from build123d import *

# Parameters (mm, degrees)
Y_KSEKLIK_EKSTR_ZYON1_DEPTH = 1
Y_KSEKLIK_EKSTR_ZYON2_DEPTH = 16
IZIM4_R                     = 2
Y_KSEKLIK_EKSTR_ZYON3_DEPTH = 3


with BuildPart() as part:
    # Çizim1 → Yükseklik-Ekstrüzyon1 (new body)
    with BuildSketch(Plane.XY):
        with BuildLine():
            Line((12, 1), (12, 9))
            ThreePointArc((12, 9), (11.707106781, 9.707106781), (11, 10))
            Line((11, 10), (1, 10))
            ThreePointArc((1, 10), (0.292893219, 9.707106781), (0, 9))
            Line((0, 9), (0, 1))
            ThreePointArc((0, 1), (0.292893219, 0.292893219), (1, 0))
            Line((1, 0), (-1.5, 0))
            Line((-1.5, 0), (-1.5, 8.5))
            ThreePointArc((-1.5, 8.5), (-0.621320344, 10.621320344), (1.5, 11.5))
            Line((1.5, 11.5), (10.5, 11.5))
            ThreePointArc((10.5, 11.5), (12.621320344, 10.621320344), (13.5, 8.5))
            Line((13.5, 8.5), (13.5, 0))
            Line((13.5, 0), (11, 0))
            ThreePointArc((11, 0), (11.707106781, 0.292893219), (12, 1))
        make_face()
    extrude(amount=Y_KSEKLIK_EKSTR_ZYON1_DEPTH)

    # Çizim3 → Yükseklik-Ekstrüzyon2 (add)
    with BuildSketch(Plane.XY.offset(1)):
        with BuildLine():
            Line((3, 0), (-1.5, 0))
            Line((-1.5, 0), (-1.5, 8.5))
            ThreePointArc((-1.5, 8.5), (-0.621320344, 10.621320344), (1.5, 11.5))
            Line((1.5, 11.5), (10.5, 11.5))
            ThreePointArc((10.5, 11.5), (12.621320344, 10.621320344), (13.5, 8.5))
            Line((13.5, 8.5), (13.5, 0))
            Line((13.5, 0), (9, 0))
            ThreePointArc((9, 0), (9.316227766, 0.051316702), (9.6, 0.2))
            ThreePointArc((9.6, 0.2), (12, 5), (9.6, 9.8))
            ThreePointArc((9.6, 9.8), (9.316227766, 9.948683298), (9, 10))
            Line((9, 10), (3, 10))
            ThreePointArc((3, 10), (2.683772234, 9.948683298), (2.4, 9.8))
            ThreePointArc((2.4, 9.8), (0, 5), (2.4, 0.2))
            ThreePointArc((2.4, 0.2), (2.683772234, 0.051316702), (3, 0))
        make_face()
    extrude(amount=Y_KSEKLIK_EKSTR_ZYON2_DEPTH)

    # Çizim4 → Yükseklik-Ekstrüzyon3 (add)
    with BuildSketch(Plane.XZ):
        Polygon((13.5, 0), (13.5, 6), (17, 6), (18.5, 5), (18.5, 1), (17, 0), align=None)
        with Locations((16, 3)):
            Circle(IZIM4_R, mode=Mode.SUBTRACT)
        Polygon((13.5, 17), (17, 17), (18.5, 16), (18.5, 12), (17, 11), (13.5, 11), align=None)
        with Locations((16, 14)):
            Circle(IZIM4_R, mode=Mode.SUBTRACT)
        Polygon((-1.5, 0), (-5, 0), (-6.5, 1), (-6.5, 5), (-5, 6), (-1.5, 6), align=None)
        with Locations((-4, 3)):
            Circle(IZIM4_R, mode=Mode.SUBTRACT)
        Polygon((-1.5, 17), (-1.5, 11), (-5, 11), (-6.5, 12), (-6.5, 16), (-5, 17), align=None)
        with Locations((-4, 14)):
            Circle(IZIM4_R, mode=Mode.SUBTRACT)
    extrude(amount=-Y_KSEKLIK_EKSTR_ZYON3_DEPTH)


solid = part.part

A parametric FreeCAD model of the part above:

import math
import FreeCAD as App
import Part
import Sketcher

doc = App.newDocument("Part")
body = doc.addObject("PartDesign::Body", "Body")

# Sketch on XY plane
sketch1 = body.newObject("Sketcher::SketchObject", "Sketch")
sketch1.AttachmentSupport = (doc.getObject("XY_Plane"), [""])
sketch1.MapMode = "FlatFace"
sketch1.addGeometry(Part.LineSegment(App.Vector(12, 9, 0), App.Vector(12, 1, 0)), False)
sketch1.addGeometry(Part.ArcOfCircle(Part.Circle(App.Vector(11, 1, 0), App.Vector(0, 0, 1), 1), math.radians(-90), math.radians(0)), False)
sketch1.addGeometry(Part.LineSegment(App.Vector(11, 0, 0), App.Vector(13.5, 0, 0)), False)
sketch1.addGeometry(Part.LineSegment(App.Vector(13.5, 0, 0), App.Vector(13.5, 8.5, 0)), False)
sketch1.addGeometry(Part.ArcOfCircle(Part.Circle(App.Vector(10.5, 8.5, 0), App.Vector(0, 0, 1), 3), math.radians(0), math.radians(90)), False)
sketch1.addGeometry(Part.LineSegment(App.Vector(10.5, 11.5, 0), App.Vector(1.5, 11.5, 0)), False)
sketch1.addGeometry(Part.ArcOfCircle(Part.Circle(App.Vector(1.5, 8.5, 0), App.Vector(0, 0, 1), 3), math.radians(90), math.radians(180)), False)
sketch1.addGeometry(Part.LineSegment(App.Vector(-1.5, 8.5, 0), App.Vector(-1.5, 0, 0)), False)
sketch1.addGeometry(Part.LineSegment(App.Vector(-1.5, 0, 0), App.Vector(1, 0, 0)), False)
sketch1.addGeometry(Part.ArcOfCircle(Part.Circle(App.Vector(1, 1, 0), App.Vector(0, 0, 1), 1), math.radians(-180), math.radians(-90)), False)
sketch1.addGeometry(Part.LineSegment(App.Vector(0, 1, 0), App.Vector(0, 9, 0)), False)
sketch1.addGeometry(Part.ArcOfCircle(Part.Circle(App.Vector(1, 9, 0), App.Vector(0, 0, 1), 1), math.radians(90), math.radians(180)), False)
sketch1.addGeometry(Part.LineSegment(App.Vector(1, 10, 0), App.Vector(11, 10, 0)), False)
sketch1.addGeometry(Part.ArcOfCircle(Part.Circle(App.Vector(11, 9, 0), App.Vector(0, 0, 1), 1), math.radians(0), math.radians(90)), False)
sketch1.addConstraint(Sketcher.Constraint("Tangent", 0, 2, 1, 2))
sketch1.addConstraint(Sketcher.Constraint("Tangent", 1, 1, 2, 1))
sketch1.addConstraint(Sketcher.Constraint("Coincident", 2, 2, 3, 1))
sketch1.addConstraint(Sketcher.Constraint("Tangent", 3, 2, 4, 1))
sketch1.addConstraint(Sketcher.Constraint("Tangent", 4, 2, 5, 1))
sketch1.addConstraint(Sketcher.Constraint("Tangent", 5, 2, 6, 1))
sketch1.addConstraint(Sketcher.Constraint("Tangent", 6, 2, 7, 1))
sketch1.addConstraint(Sketcher.Constraint("Coincident", 7, 2, 8, 1))
sketch1.addConstraint(Sketcher.Constraint("Tangent", 8, 2, 9, 2))
sketch1.addConstraint(Sketcher.Constraint("Tangent", 9, 1, 10, 1))
sketch1.addConstraint(Sketcher.Constraint("Tangent", 10, 2, 11, 2))
sketch1.addConstraint(Sketcher.Constraint("Tangent", 11, 1, 12, 1))
sketch1.addConstraint(Sketcher.Constraint("Tangent", 12, 2, 13, 2))
sketch1.addConstraint(Sketcher.Constraint("Tangent", 13, 1, 0, 1))
sketch1.addConstraint(Sketcher.Constraint("Vertical", 0))
sketch1.addConstraint(Sketcher.Constraint("Horizontal", 2))
sketch1.addConstraint(Sketcher.Constraint("Vertical", 3))
sketch1.addConstraint(Sketcher.Constraint("Horizontal", 5))
sketch1.addConstraint(Sketcher.Constraint("Vertical", 7))
sketch1.addConstraint(Sketcher.Constraint("Horizontal", 8))
sketch1.addConstraint(Sketcher.Constraint("Vertical", 10))
sketch1.addConstraint(Sketcher.Constraint("Horizontal", 12))
sketch1.addConstraint(Sketcher.Constraint("Equal", 4, 6))
sketch1.addConstraint(Sketcher.Constraint("Equal", 1, 9))
sketch1.addConstraint(Sketcher.Constraint("Equal", 9, 11))
sketch1.addConstraint(Sketcher.Constraint("Equal", 11, 13))
sketch1.addConstraint(Sketcher.Constraint("PointOnObject", 1, 1, -1))
sketch1.addConstraint(Sketcher.Constraint("PointOnObject", 7, 2, -1))
sketch1.addConstraint(Sketcher.Constraint("PointOnObject", 9, 1, -2))
sketch1.addConstraint(Sketcher.Constraint("Equal", 2, 8))
sketch1.addConstraint(Sketcher.Constraint("Radius", 1, 1.0))
sketch1.addConstraint(Sketcher.Constraint("Radius", 4, 3.0))
sketch1.addConstraint(Sketcher.Constraint("DistanceX", 5, 2, 5, 1, 9.0))
sketch1.addConstraint(Sketcher.Constraint("DistanceX", 12, 1, 12, 2, 10.0))
sketch1.addConstraint(Sketcher.Constraint("DistanceY", 0, 2, 0, 1, 8.0))
sketch1.addConstraint(Sketcher.Constraint("DistanceY", 3, 1, 3, 2, 8.5))
pad1 = body.newObject("PartDesign::Pad", "Pad")
pad1.Profile = sketch1
pad1.Length = 1

# Sketch on XY plane
sketch2 = body.newObject("Sketcher::SketchObject", "Sketch001")
sketch2.AttachmentSupport = (doc.getObject("XY_Plane"), [""])
sketch2.MapMode = "FlatFace"
sketch2.AttachmentOffset = App.Placement(App.Vector(0, 0, 1), App.Rotation())
sketch2.addGeometry(Part.LineSegment(App.Vector(-1.5, 0, 0), App.Vector(3, 0, 0)), False)
sketch2.addGeometry(Part.ArcOfCircle(Part.Circle(App.Vector(3, 1, 0), App.Vector(0, 0, 1), 1), math.radians(-127), math.radians(-90)), False)
sketch2.addGeometry(Part.ArcOfCircle(Part.Circle(App.Vector(6, 5, 0), App.Vector(0, 0, 1), 6), math.radians(127), math.radians(233)), False)
sketch2.addGeometry(Part.ArcOfCircle(Part.Circle(App.Vector(3, 9, 0), App.Vector(0, 0, 1), 1), math.radians(90), math.radians(127)), False)
sketch2.addGeometry(Part.LineSegment(App.Vector(3, 10, 0), App.Vector(9, 10, 0)), False)
sketch2.addGeometry(Part.ArcOfCircle(Part.Circle(App.Vector(9, 9, 0), App.Vector(0, 0, 1), 1), math.radians(53), math.radians(90)), False)
sketch2.addGeometry(Part.ArcOfCircle(Part.Circle(App.Vector(6, 5, 0), App.Vector(0, 0, 1), 6), math.radians(-53), math.radians(53)), False)
sketch2.addGeometry(Part.ArcOfCircle(Part.Circle(App.Vector(9, 1, 0), App.Vector(0, 0, 1), 1), math.radians(-90), math.radians(-53)), False)
sketch2.addGeometry(Part.LineSegment(App.Vector(9, 0, 0), App.Vector(13.5, 0, 0)), False)
sketch2.addGeometry(Part.LineSegment(App.Vector(13.5, 0, 0), App.Vector(13.5, 8.5, 0)), False)
sketch2.addGeometry(Part.ArcOfCircle(Part.Circle(App.Vector(10.5, 8.5, 0), App.Vector(0, 0, 1), 3), math.radians(0), math.radians(90)), False)
sketch2.addGeometry(Part.LineSegment(App.Vector(10.5, 11.5, 0), App.Vector(1.5, 11.5, 0)), False)
sketch2.addGeometry(Part.ArcOfCircle(Part.Circle(App.Vector(1.5, 8.5, 0), App.Vector(0, 0, 1), 3), math.radians(90), math.radians(180)), False)
sketch2.addGeometry(Part.LineSegment(App.Vector(-1.5, 8.5, 0), App.Vector(-1.5, 0, 0)), False)
sketch2.addConstraint(Sketcher.Constraint("Tangent", 0, 2, 1, 2))
sketch2.addConstraint(Sketcher.Constraint("Tangent", 1, 1, 2, 2))
sketch2.addConstraint(Sketcher.Constraint("Tangent", 2, 1, 3, 2))
sketch2.addConstraint(Sketcher.Constraint("Tangent", 3, 1, 4, 1))
sketch2.addConstraint(Sketcher.Constraint("Tangent", 4, 2, 5, 2))
sketch2.addConstraint(Sketcher.Constraint("Tangent", 5, 1, 6, 2))
sketch2.addConstraint(Sketcher.Constraint("Tangent", 6, 1, 7, 2))
sketch2.addConstraint(Sketcher.Constraint("Tangent", 7, 1, 8, 1))
sketch2.addConstraint(Sketcher.Constraint("Coincident", 8, 2, 9, 1))
sketch2.addConstraint(Sketcher.Constraint("Tangent", 9, 2, 10, 1))
sketch2.addConstraint(Sketcher.Constraint("Tangent", 10, 2, 11, 1))
sketch2.addConstraint(Sketcher.Constraint("Tangent", 11, 2, 12, 1))
sketch2.addConstraint(Sketcher.Constraint("Tangent", 12, 2, 13, 1))
sketch2.addConstraint(Sketcher.Constraint("Coincident", 13, 2, 0, 1))
sketch2.addConstraint(Sketcher.Constraint("Horizontal", 0))
sketch2.addConstraint(Sketcher.Constraint("Horizontal", 4))
sketch2.addConstraint(Sketcher.Constraint("Horizontal", 8))
sketch2.addConstraint(Sketcher.Constraint("Vertical", 9))
sketch2.addConstraint(Sketcher.Constraint("Horizontal", 11))
sketch2.addConstraint(Sketcher.Constraint("Vertical", 13))
sketch2.addConstraint(Sketcher.Constraint("Coincident", 6, 3, 2, 3))
sketch2.addConstraint(Sketcher.Constraint("Equal", 1, 3))
sketch2.addConstraint(Sketcher.Constraint("Equal", 3, 5))
sketch2.addConstraint(Sketcher.Constraint("Equal", 2, 6))
sketch2.addConstraint(Sketcher.Constraint("Equal", 5, 7))
sketch2.addConstraint(Sketcher.Constraint("Equal", 10, 12))
sketch2.addConstraint(Sketcher.Constraint("PointOnObject", 0, 2, -1))
sketch2.addConstraint(Sketcher.Constraint("PointOnObject", 7, 1, -1))
sketch2.addConstraint(Sketcher.Constraint("Vertical", 1, 3, 3, 3))
sketch2.addConstraint(Sketcher.Constraint("Equal", 0, 8))
sketch2.addConstraint(Sketcher.Constraint("Radius", 1, 1.0))
sketch2.addConstraint(Sketcher.Constraint("Radius", 2, 6.0))
sketch2.addConstraint(Sketcher.Constraint("Radius", 10, 3.0))
sketch2.addConstraint(Sketcher.Constraint("DistanceX", 4, 1, 4, 2, 6.0))
sketch2.addConstraint(Sketcher.Constraint("DistanceX", 11, 2, 11, 1, 9.0))
sketch2.addConstraint(Sketcher.Constraint("DistanceY", 9, 1, 9, 2, 8.5))
sketch2.addConstraint(Sketcher.Constraint("DistanceX", -1, 1, 1, 3, 3.0))
pad2 = body.newObject("PartDesign::Pad", "Pad001")
pad2.Profile = sketch2
pad2.Length = 16

# Sketch on XZ plane
sketch3 = body.newObject("Sketcher::SketchObject", "Sketch002")
sketch3.AttachmentSupport = (doc.getObject("XZ_Plane"), [""])
sketch3.MapMode = "FlatFace"
sketch3.addGeometry(Part.LineSegment(App.Vector(13.5, 6, 0), App.Vector(13.5, 0, 0)), False)
sketch3.addGeometry(Part.LineSegment(App.Vector(13.5, 0, 0), App.Vector(17, 0, 0)), False)
sketch3.addGeometry(Part.LineSegment(App.Vector(17, 0, 0), App.Vector(18.5, 1, 0)), False)
sketch3.addGeometry(Part.LineSegment(App.Vector(18.5, 1, 0), App.Vector(18.5, 5, 0)), False)
sketch3.addGeometry(Part.LineSegment(App.Vector(18.5, 5, 0), App.Vector(17, 6, 0)), False)
sketch3.addGeometry(Part.LineSegment(App.Vector(17, 6, 0), App.Vector(13.5, 6, 0)), False)
sketch3.addGeometry(Part.Circle(App.Vector(16, 3, 0), App.Vector(0, 0, 1), 2), False)
sketch3.addGeometry(Part.LineSegment(App.Vector(17, 17, 0), App.Vector(13.5, 17, 0)), False)
sketch3.addGeometry(Part.LineSegment(App.Vector(13.5, 17, 0), App.Vector(13.5, 11, 0)), False)
sketch3.addGeometry(Part.LineSegment(App.Vector(13.5, 11, 0), App.Vector(17, 11, 0)), False)
sketch3.addGeometry(Part.LineSegment(App.Vector(17, 11, 0), App.Vector(18.5, 12, 0)), False)
sketch3.addGeometry(Part.LineSegment(App.Vector(18.5, 12, 0), App.Vector(18.5, 16, 0)), False)
sketch3.addGeometry(Part.LineSegment(App.Vector(18.5, 16, 0), App.Vector(17, 17, 0)), False)
sketch3.addGeometry(Part.Circle(App.Vector(16, 14, 0), App.Vector(0, 0, 1), 2), False)
sketch3.addGeometry(Part.LineSegment(App.Vector(-5, 0, 0), App.Vector(-1.5, 0, 0)), False)
sketch3.addGeometry(Part.LineSegment(App.Vector(-1.5, 0, 0), App.Vector(-1.5, 6, 0)), False)
sketch3.addGeometry(Part.LineSegment(App.Vector(-1.5, 6, 0), App.Vector(-5, 6, 0)), False)
sketch3.addGeometry(Part.LineSegment(App.Vector(-5, 6, 0), App.Vector(-6.5, 5, 0)), False)
sketch3.addGeometry(Part.LineSegment(App.Vector(-6.5, 5, 0), App.Vector(-6.5, 1, 0)), False)
sketch3.addGeometry(Part.LineSegment(App.Vector(-6.5, 1, 0), App.Vector(-5, 0, 0)), False)
sketch3.addGeometry(Part.Circle(App.Vector(-4, 3, 0), App.Vector(0, 0, 1), 2), False)
sketch3.addGeometry(Part.LineSegment(App.Vector(-1.5, 11, 0), App.Vector(-1.5, 17, 0)), False)
sketch3.addGeometry(Part.LineSegment(App.Vector(-1.5, 17, 0), App.Vector(-5, 17, 0)), False)
sketch3.addGeometry(Part.LineSegment(App.Vector(-5, 17, 0), App.Vector(-6.5, 16, 0)), False)
sketch3.addGeometry(Part.LineSegment(App.Vector(-6.5, 16, 0), App.Vector(-6.5, 12, 0)), False)
sketch3.addGeometry(Part.LineSegment(App.Vector(-6.5, 12, 0), App.Vector(-5, 11, 0)), False)
sketch3.addGeometry(Part.LineSegment(App.Vector(-5, 11, 0), App.Vector(-1.5, 11, 0)), False)
sketch3.addGeometry(Part.Circle(App.Vector(-4, 14, 0), App.Vector(0, 0, 1), 2), False)
sketch3.addConstraint(Sketcher.Constraint("Coincident", 0, 2, 1, 1))
sketch3.addConstraint(Sketcher.Constraint("Coincident", 1, 2, 2, 1))
sketch3.addConstraint(Sketcher.Constraint("Coincident", 2, 2, 3, 1))
sketch3.addConstraint(Sketcher.Constraint("Coincident", 3, 2, 4, 1))
sketch3.addConstraint(Sketcher.Constraint("Coincident", 4, 2, 5, 1))
sketch3.addConstraint(Sketcher.Constraint("Coincident", 5, 2, 0, 1))
sketch3.addConstraint(Sketcher.Constraint("Coincident", 7, 2, 8, 1))
sketch3.addConstraint(Sketcher.Constraint("Coincident", 8, 2, 9, 1))
sketch3.addConstraint(Sketcher.Constraint("Coincident", 9, 2, 10, 1))
sketch3.addConstraint(Sketcher.Constraint("Coincident", 10, 2, 11, 1))
sketch3.addConstraint(Sketcher.Constraint("Coincident", 11, 2, 12, 1))
sketch3.addConstraint(Sketcher.Constraint("Coincident", 12, 2, 7, 1))
sketch3.addConstraint(Sketcher.Constraint("Coincident", 14, 2, 15, 1))
sketch3.addConstraint(Sketcher.Constraint("Coincident", 15, 2, 16, 1))
sketch3.addConstraint(Sketcher.Constraint("Coincident", 16, 2, 17, 1))
sketch3.addConstraint(Sketcher.Constraint("Coincident", 17, 2, 18, 1))
sketch3.addConstraint(Sketcher.Constraint("Coincident", 18, 2, 19, 1))
sketch3.addConstraint(Sketcher.Constraint("Coincident", 19, 2, 14, 1))
sketch3.addConstraint(Sketcher.Constraint("Coincident", 21, 2, 22, 1))
sketch3.addConstraint(Sketcher.Constraint("Coincident", 22, 2, 23, 1))
sketch3.addConstraint(Sketcher.Constraint("Coincident", 23, 2, 24, 1))
sketch3.addConstraint(Sketcher.Constraint("Coincident", 24, 2, 25, 1))
sketch3.addConstraint(Sketcher.Constraint("Coincident", 25, 2, 26, 1))
sketch3.addConstraint(Sketcher.Constraint("Coincident", 26, 2, 21, 1))
sketch3.addConstraint(Sketcher.Constraint("Vertical", 0))
sketch3.addConstraint(Sketcher.Constraint("Horizontal", 1))
sketch3.addConstraint(Sketcher.Constraint("Vertical", 3))
sketch3.addConstraint(Sketcher.Constraint("Horizontal", 5))
sketch3.addConstraint(Sketcher.Constraint("Horizontal", 7))
sketch3.addConstraint(Sketcher.Constraint("Vertical", 8))
sketch3.addConstraint(Sketcher.Constraint("Horizontal", 9))
sketch3.addConstraint(Sketcher.Constraint("Vertical", 11))
sketch3.addConstraint(Sketcher.Constraint("Horizontal", 14))
sketch3.addConstraint(Sketcher.Constraint("Vertical", 15))
sketch3.addConstraint(Sketcher.Constraint("Horizontal", 16))
sketch3.addConstraint(Sketcher.Constraint("Vertical", 18))
sketch3.addConstraint(Sketcher.Constraint("Vertical", 21))
sketch3.addConstraint(Sketcher.Constraint("Horizontal", 22))
sketch3.addConstraint(Sketcher.Constraint("Vertical", 24))
sketch3.addConstraint(Sketcher.Constraint("Horizontal", 26))
sketch3.addConstraint(Sketcher.Constraint("Equal", 6, 13))
sketch3.addConstraint(Sketcher.Constraint("Equal", 13, 20))
sketch3.addConstraint(Sketcher.Constraint("Equal", 20, 27))
sketch3.addConstraint(Sketcher.Constraint("PointOnObject", 0, 2, -1))
sketch3.addConstraint(Sketcher.Constraint("PointOnObject", 14, 2, -1))
sketch3.addConstraint(Sketcher.Constraint("Parallel", 2, 10))
sketch3.addConstraint(Sketcher.Constraint("Parallel", 4, 12))
sketch3.addConstraint(Sketcher.Constraint("Parallel", 10, 17))
sketch3.addConstraint(Sketcher.Constraint("Parallel", 12, 19))
sketch3.addConstraint(Sketcher.Constraint("Parallel", 17, 23))
sketch3.addConstraint(Sketcher.Constraint("Parallel", 19, 25))
sketch3.addConstraint(Sketcher.Constraint("Horizontal", 6, 3, 20, 3))
sketch3.addConstraint(Sketcher.Constraint("Horizontal", 13, 3, 27, 3))
sketch3.addConstraint(Sketcher.Constraint("Horizontal", 5, 2, 15, 2))
sketch3.addConstraint(Sketcher.Constraint("Horizontal", 3, 2, 17, 2))
sketch3.addConstraint(Sketcher.Constraint("Horizontal", 2, 2, 18, 2))
sketch3.addConstraint(Sketcher.Constraint("Horizontal", 12, 2, 21, 2))
sketch3.addConstraint(Sketcher.Constraint("Horizontal", 11, 2, 23, 2))
sketch3.addConstraint(Sketcher.Constraint("Horizontal", 10, 2, 24, 2))
sketch3.addConstraint(Sketcher.Constraint("Horizontal", 9, 2, 25, 2))
sketch3.addConstraint(Sketcher.Constraint("Vertical", 6, 3, 13, 3))
sketch3.addConstraint(Sketcher.Constraint("Vertical", 20, 3, 27, 3))
sketch3.addConstraint(Sketcher.Constraint("Vertical", 1, 2, 4, 2))
sketch3.addConstraint(Sketcher.Constraint("Vertical", 5, 2, 7, 2))
sketch3.addConstraint(Sketcher.Constraint("Vertical", 4, 2, 9, 2))
sketch3.addConstraint(Sketcher.Constraint("Vertical", 3, 2, 10, 2))
sketch3.addConstraint(Sketcher.Constraint("Vertical", 9, 2, 12, 2))
sketch3.addConstraint(Sketcher.Constraint("Vertical", 16, 2, 19, 2))
sketch3.addConstraint(Sketcher.Constraint("Vertical", 15, 2, 21, 2))
sketch3.addConstraint(Sketcher.Constraint("Vertical", 19, 2, 22, 2))
sketch3.addConstraint(Sketcher.Constraint("Equal", 9, 14))
sketch3.addConstraint(Sketcher.Constraint("Equal", 0, 8))
sketch3.addConstraint(Sketcher.Constraint("Diameter", 6, 4.0))
sketch3.addConstraint(Sketcher.Constraint("DistanceY", 0, 2, 0, 1, 6.0))
sketch3.addConstraint(Sketcher.Constraint("DistanceY", 3, 1, 3, 2, 4.0))
sketch3.addConstraint(Sketcher.Constraint("DistanceX", 1, 1, 1, 2, 3.5))
sketch3.addConstraint(Sketcher.Constraint("DistanceX", -1, 1, 6, 3, 16.0))
sketch3.addConstraint(Sketcher.Constraint("DistanceY", -1, 1, 6, 3, 3.0))
sketch3.addConstraint(Sketcher.Constraint("DistanceY", -1, 1, 13, 3, 14.0))
sketch3.addConstraint(Sketcher.Constraint("DistanceX", 20, 3, -1, 1, 4.0))
sketch3.addConstraint(Sketcher.Constraint("DistanceX", -1, 1, 1, 2, 17.0))
sketch3.addConstraint(Sketcher.Constraint("DistanceY", -1, 1, 7, 2, 17.0))
sketch3.addConstraint(Sketcher.Constraint("DistanceX", 16, 2, -1, 1, 5.0))
sketch3.addConstraint(Sketcher.Constraint("DistanceX", 0, 2, 2, 2, 5.0))
pad3 = body.newObject("PartDesign::Pad", "Pad002")
pad3.Profile = sketch3
pad3.Length = 3
pad3.Reversed = True

doc.recompute()
